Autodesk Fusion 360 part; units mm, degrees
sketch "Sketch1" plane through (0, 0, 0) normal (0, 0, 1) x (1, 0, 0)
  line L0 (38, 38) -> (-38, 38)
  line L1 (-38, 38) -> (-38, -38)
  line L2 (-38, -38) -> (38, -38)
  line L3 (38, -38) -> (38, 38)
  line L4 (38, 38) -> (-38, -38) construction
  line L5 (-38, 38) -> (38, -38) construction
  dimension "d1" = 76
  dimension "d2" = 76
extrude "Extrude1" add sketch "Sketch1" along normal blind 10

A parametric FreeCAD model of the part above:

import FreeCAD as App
import Part
import Sketcher

V = App.Vector
Q = App.Units.Quantity

doc = App.newDocument("Part")
params = doc.addObject("Spreadsheet::Sheet", "Params")
for row, (alias, value) in enumerate([
    ("sketch1_width", "76 mm"),
    ("pad1_length", "10 mm"),
], start=1):
    params.set(f"A{row}", alias)
    params.set(f"B{row}", "=" + value)
    params.setAlias(f"B{row}", alias)

body = doc.addObject("PartDesign::Body", "Body")

sketch1 = body.newObject("Sketcher::SketchObject", "Sketch")
sketch1.AttachmentSupport = (doc.getObject("XY_Plane"), [""])
sketch1.MapMode = "FlatFace"
sketch1.addGeometry(Part.LineSegment(V(38, -38, 0), V(38, 38, 0)), False)
sketch1.addGeometry(Part.LineSegment(V(38, 38, 0), V(-38, 38, 0)), False)
sketch1.addGeometry(Part.LineSegment(V(-38, 38, 0), V(-38, -38, 0)), False)
sketch1.addGeometry(Part.LineSegment(V(-38, -38, 0), V(38, -38, 0)), False)
sketch1.addConstraint(Sketcher.Constraint("Coincident", 0, 2, 1, 1))
sketch1.addConstraint(Sketcher.Constraint("Coincident", 1, 2, 2, 1))
sketch1.addConstraint(Sketcher.Constraint("Coincident", 2, 2, 3, 1))
sketch1.addConstraint(Sketcher.Constraint("Coincident", 3, 2, 0, 1))
sketch1.addConstraint(Sketcher.Constraint("Vertical", 0))
sketch1.addConstraint(Sketcher.Constraint("Horizontal", 1))
sketch1.addConstraint(Sketcher.Constraint("Vertical", 2))
sketch1.addConstraint(Sketcher.Constraint("Horizontal", 3))
sketch1.addConstraint(Sketcher.Constraint("Symmetric", 0, 2, 2, 2, -1, 1))
sketch1.addConstraint(Sketcher.Constraint("Equal", 3, 0))
sketch1.addConstraint(Sketcher.Constraint("DistanceX", 1, 2, 1, 1, Q("76 mm")))
sketch1.setExpression("Constraints[10]", "Params.sketch1_width")
pad1 = body.newObject("PartDesign::Pad", "Pad")
pad1.Profile = sketch1
pad1.setExpression("Length", "Params.pad1_length")

doc.recompute()
